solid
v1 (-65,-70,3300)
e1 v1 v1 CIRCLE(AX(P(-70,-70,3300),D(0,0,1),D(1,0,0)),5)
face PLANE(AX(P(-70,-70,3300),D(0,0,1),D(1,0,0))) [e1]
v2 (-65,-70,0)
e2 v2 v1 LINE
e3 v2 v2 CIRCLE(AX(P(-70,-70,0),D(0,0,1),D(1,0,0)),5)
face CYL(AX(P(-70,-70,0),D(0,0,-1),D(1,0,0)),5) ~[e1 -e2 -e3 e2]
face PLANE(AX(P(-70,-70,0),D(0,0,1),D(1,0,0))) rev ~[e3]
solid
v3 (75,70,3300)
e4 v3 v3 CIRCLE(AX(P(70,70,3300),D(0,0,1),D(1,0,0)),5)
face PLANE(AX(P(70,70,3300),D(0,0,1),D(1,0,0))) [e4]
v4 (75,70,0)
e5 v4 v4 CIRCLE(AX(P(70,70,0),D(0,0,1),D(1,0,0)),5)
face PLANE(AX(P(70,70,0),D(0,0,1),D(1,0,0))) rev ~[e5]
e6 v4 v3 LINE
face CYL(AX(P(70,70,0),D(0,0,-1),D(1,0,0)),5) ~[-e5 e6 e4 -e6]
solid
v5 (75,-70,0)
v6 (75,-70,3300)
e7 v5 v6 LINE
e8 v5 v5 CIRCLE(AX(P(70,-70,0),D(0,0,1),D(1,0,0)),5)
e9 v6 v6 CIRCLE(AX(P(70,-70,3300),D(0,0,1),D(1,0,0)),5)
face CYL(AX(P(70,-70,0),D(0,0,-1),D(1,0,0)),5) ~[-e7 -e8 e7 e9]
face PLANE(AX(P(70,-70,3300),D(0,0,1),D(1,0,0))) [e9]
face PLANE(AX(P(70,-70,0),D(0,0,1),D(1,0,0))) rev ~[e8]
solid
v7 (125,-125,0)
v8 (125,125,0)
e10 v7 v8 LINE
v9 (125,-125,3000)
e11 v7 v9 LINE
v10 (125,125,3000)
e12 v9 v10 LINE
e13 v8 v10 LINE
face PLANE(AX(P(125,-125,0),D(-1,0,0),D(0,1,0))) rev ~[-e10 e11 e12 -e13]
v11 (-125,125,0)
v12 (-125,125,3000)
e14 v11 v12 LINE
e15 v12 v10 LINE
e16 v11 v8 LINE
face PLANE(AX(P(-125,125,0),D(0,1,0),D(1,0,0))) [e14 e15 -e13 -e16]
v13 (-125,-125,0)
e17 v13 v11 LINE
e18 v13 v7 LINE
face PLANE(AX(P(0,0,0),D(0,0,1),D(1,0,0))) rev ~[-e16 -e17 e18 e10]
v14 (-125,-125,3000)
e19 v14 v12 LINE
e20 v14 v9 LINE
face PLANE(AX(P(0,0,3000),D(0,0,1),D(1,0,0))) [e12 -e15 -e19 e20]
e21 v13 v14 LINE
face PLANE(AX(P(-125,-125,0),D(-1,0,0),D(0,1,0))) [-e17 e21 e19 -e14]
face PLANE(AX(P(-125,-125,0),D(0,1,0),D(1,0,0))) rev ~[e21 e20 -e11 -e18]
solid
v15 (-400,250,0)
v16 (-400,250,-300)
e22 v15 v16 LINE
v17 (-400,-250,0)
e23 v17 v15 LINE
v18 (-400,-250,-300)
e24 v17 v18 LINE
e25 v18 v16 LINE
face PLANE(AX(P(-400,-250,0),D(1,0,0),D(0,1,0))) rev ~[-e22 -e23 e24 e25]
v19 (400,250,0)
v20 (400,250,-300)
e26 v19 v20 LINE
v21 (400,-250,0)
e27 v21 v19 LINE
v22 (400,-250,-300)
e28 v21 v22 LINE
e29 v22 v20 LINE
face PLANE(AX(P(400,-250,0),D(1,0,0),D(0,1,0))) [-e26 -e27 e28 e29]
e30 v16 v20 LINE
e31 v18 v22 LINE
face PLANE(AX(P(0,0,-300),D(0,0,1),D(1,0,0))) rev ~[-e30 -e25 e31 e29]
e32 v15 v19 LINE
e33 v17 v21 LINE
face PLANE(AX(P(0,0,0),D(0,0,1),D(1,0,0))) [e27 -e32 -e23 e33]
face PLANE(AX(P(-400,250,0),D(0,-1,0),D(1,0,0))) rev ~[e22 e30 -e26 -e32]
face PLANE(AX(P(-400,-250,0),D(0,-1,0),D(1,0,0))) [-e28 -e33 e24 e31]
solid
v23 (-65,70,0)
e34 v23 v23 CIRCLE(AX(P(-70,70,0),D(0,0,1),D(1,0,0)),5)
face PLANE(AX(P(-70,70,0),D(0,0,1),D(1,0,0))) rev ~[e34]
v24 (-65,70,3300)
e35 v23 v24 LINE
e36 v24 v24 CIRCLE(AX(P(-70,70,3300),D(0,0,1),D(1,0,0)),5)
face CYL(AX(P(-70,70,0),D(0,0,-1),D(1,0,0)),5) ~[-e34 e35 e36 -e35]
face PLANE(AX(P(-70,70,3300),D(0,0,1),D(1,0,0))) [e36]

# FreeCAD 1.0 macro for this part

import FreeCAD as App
import Part
import Sketcher


def add_polygon(sketch, points):
    """Adds a closed chain of lines whose ends are joined by coincident constraints."""
    first, n = sketch.GeometryCount, len(points)
    for a, b in zip(points, points[1:] + points[:1]):
        sketch.addGeometry(Part.LineSegment(App.Vector(*a, 0), App.Vector(*b, 0)), False)
    for i in range(n):
        sketch.addConstraint(Sketcher.Constraint("Coincident", first + i, 2, first + (i + 1) % n, 1))

doc = App.newDocument("Part")
body = doc.addObject("PartDesign::Body", "Body")

sketch1 = body.newObject("Sketcher::SketchObject", "Sketch")
sketch1.AttachmentSupport = (doc.getObject("XY_Plane"), [""])
sketch1.MapMode = "FlatFace"
add_polygon(sketch1, [(-125, 125), (-125, -125), (125, -125), (125, 125)])
sketch1.addConstraint([
    Sketcher.Constraint("Vertical", 0),
    Sketcher.Constraint("Horizontal", 1),
    Sketcher.Constraint("Vertical", 2),
    Sketcher.Constraint("Horizontal", 3),
    Sketcher.Constraint("Symmetric", 0, 2, 2, 2, -1, 1),
    Sketcher.Constraint("Equal", 3, 0),
    Sketcher.Constraint("DistanceX", 1, 1, 1, 2, 250.0),
])
pad1 = body.newObject("PartDesign::Pad", "Pad")
pad1.Profile = sketch1
pad1.Length = 3000
body2 = doc.addObject("PartDesign::Body", "Body001")
body2.AllowCompound = True

sketch2 = body2.newObject("Sketcher::SketchObject", "Sketch001")
sketch2.AttachmentSupport = (doc.getObject("XY_Plane001"), [""])
sketch2.MapMode = "FlatFace"
sketch2.addGeometry([
    Part.Circle(App.Vector(70, -70, 0), App.Vector(0, 0, 1), 5),
    Part.Circle(App.Vector(70, 70, 0), App.Vector(0, 0, 1), 5),
    Part.Circle(App.Vector(-70, 70, 0), App.Vector(0, 0, 1), 5),
    Part.Circle(App.Vector(-70, -70, 0), App.Vector(0, 0, 1), 5),
], False)
sketch2.addConstraint([
    Sketcher.Constraint("Equal", 0, 1),
    Sketcher.Constraint("Equal", 1, 2),
    Sketcher.Constraint("Equal", 2, 3),
    Sketcher.Constraint("Symmetric", 0, 3, 2, 3, -1, 1),
    Sketcher.Constraint("Symmetric", 1, 3, 3, 3, -1, 1),
    Sketcher.Constraint("Symmetric", 1, 3, 2, 3, -2),
    Sketcher.Constraint("Diameter", 0, 10.0),
    Sketcher.Constraint("DistanceX", -1, 1, 0, 3, 70.0),
    Sketcher.Constraint("DistanceY", 0, 3, -1, 1, 70.0),
])
pad2 = body2.newObject("PartDesign::Pad", "Pad001")
pad2.Profile = sketch2
pad2.Length = 3300
body3 = doc.addObject("PartDesign::Body", "Body002")

sketch3 = body3.newObject("Sketcher::SketchObject", "Sketch002")
sketch3.AttachmentSupport = (doc.getObject("XY_Plane002"), [""])
sketch3.MapMode = "FlatFace"
add_polygon(sketch3, [(-400, 250), (-400, -250), (400, -250), (400, 250)])
sketch3.addConstraint([
    Sketcher.Constraint("Vertical", 0),
    Sketcher.Constraint("Horizontal", 1),
    Sketcher.Constraint("Vertical", 2),
    Sketcher.Constraint("Horizontal", 3),
    Sketcher.Constraint("Symmetric", 0, 2, 2, 2, -1, 1),
    Sketcher.Constraint("DistanceX", 1, 1, 1, 2, 800.0),
    Sketcher.Constraint("DistanceY", 0, 2, 0, 1, 500.0),
])
pad3 = body3.newObject("PartDesign::Pad", "Pad002")
pad3.Profile = sketch3
pad3.Length = 300
pad3.Reversed = True

doc.recompute()
